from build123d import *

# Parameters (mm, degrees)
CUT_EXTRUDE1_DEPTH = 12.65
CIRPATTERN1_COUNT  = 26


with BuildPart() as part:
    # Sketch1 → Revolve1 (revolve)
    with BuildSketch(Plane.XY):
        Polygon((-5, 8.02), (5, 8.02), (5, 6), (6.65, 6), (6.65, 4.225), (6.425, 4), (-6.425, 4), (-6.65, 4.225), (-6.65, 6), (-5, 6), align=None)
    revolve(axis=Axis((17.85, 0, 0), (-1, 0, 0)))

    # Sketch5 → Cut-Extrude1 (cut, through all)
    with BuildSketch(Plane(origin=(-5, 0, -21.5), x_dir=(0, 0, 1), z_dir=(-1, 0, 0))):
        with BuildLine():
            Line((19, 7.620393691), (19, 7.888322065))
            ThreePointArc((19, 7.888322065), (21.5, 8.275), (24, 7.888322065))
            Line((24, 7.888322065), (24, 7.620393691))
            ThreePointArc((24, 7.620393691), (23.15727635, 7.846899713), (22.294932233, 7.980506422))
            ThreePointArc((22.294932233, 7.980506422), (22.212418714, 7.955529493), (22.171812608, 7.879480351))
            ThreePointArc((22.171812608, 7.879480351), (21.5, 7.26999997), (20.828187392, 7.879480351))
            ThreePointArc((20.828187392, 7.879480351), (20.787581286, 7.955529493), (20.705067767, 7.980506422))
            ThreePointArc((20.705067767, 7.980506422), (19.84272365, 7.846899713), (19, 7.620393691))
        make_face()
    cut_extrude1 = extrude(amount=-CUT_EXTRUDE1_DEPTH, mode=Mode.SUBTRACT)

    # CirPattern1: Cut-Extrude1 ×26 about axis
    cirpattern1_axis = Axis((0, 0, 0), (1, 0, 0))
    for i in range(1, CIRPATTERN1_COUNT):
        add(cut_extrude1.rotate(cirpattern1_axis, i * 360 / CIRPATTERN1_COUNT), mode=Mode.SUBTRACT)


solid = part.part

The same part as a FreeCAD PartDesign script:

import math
import FreeCAD as App
import Part
import Sketcher

doc = App.newDocument("Part")
body = doc.addObject("PartDesign::Body", "Body")

# Sketch on XY plane
sketch1 = body.newObject("Sketcher::SketchObject", "Sketch")
sketch1.AttachmentSupport = (doc.getObject("XY_Plane"), [""])
sketch1.MapMode = "FlatFace"
sketch1.addGeometry([
    Part.LineSegment(App.Vector(5, 8.02, 0), App.Vector(-5, 8.02, 0)),  # 0
    Part.LineSegment(App.Vector(-5, 8.02, 0), App.Vector(-5, 6, 0)),  # 1
    Part.LineSegment(App.Vector(-5, 6, 0), App.Vector(-6.65, 6, 0)),  # 2
    Part.LineSegment(App.Vector(-6.65, 6, 0), App.Vector(-6.65, 4.22, 0)),  # 3
    Part.LineSegment(App.Vector(-6.65, 4.22, 0), App.Vector(-6.42, 4, 0)),  # 4
    Part.LineSegment(App.Vector(-6.42, 4, 0), App.Vector(6.42, 4, 0)),  # 5
    Part.LineSegment(App.Vector(6.42, 4, 0), App.Vector(6.65, 4.22, 0)),  # 6
    Part.LineSegment(App.Vector(6.65, 4.22, 0), App.Vector(6.65, 6, 0)),  # 7
    Part.LineSegment(App.Vector(6.65, 6, 0), App.Vector(5, 6, 0)),  # 8
    Part.LineSegment(App.Vector(5, 6, 0), App.Vector(5, 8.02, 0)),  # 9
], False)
sketch1.addConstraint([
    Sketcher.Constraint("Coincident", 0, 2, 1, 1),
    Sketcher.Constraint("Coincident", 1, 2, 2, 1),
    Sketcher.Constraint("Coincident", 2, 2, 3, 1),
    Sketcher.Constraint("Coincident", 3, 2, 4, 1),
    Sketcher.Constraint("Coincident", 4, 2, 5, 1),
    Sketcher.Constraint("Coincident", 5, 2, 6, 1),
    Sketcher.Constraint("Coincident", 6, 2, 7, 1),
    Sketcher.Constraint("Coincident", 7, 2, 8, 1),
    Sketcher.Constraint("Coincident", 8, 2, 9, 1),
    Sketcher.Constraint("Coincident", 9, 2, 0, 1),
    Sketcher.Constraint("Horizontal", 0),
    Sketcher.Constraint("Vertical", 1),
    Sketcher.Constraint("Horizontal", 2),
    Sketcher.Constraint("Vertical", 3),
    Sketcher.Constraint("Horizontal", 5),
    Sketcher.Constraint("Vertical", 7),
    Sketcher.Constraint("Horizontal", 8),
    Sketcher.Constraint("Vertical", 9),
    Sketcher.Constraint("Symmetric", 3, 2, 6, 2, -2),
    Sketcher.Constraint("Symmetric", 1, 2, 8, 2, -2),
    Sketcher.Constraint("Perpendicular", 4, 6),
    Sketcher.Constraint("Equal", 4, 6),
    Sketcher.Constraint("DistanceX", 0, 2, 0, 1, 10.0),
    Sketcher.Constraint("DistanceY", -1, 1, 1, 2, 6.0),
    Sketcher.Constraint("DistanceY", -1, 1, 4, 2, 4.0),
    Sketcher.Constraint("DistanceX", 2, 2, 2, 1, 1.65),
    Sketcher.Constraint("DistanceX", 5, 1, 5, 2, 12.85),
    Sketcher.Constraint("DistanceY", 1, 2, 1, 1, 2.02),
])
revolution = body.newObject("PartDesign::Revolution", "Revolution")
revolution.Profile = sketch1
revolution.ReferenceAxis = (sketch1, ["H_Axis"])
revolution.Angle = 360

# Sketch on YZ plane
sketch2 = body.newObject("Sketcher::SketchObject", "Sketch001")
sketch2.AttachmentSupport = (doc.getObject("YZ_Plane"), [""])
sketch2.MapMode = "FlatFace"
sketch2.AttachmentOffset = App.Placement(App.Vector(0, 0, -5), App.Rotation())
sketch2.addGeometry([
    Part.LineSegment(App.Vector(7.89, -2.5, 0), App.Vector(7.62, -2.5, 0)),  # 0
    Part.ArcOfCircle(Part.Circle(App.Vector(0, 0, 0), App.Vector(0, 0, 1), 8.02), math.radians(-18.16), math.radians(-5.69)),  # 1
    Part.ArcOfCircle(Part.Circle(App.Vector(7.87, -0.78, 0), App.Vector(0, 0, 1), 0.11), math.radians(-6), math.radians(84)),  # 2
    Part.ArcOfCircle(Part.Circle(App.Vector(7.94, 0, 0), App.Vector(0, 0, 1), 0.68), math.radians(96), math.radians(264)),  # 3
    Part.ArcOfCircle(Part.Circle(App.Vector(7.87, 0.78, 0), App.Vector(0, 0, 1), 0.11), math.radians(-84), math.radians(6)),  # 4
    Part.ArcOfCircle(Part.Circle(App.Vector(0, 0, 0), App.Vector(0, 0, 1), 8.02), math.radians(5.69), math.radians(18.16)),  # 5
    Part.LineSegment(App.Vector(7.62, 2.5, 0), App.Vector(7.89, 2.5, 0)),  # 6
    Part.ArcOfCircle(Part.Circle(App.Vector(0, 0, 0), App.Vector(0, 0, 1), 8.28), math.radians(-18), math.radians(18)),  # 7
], False)
sketch2.addConstraint([
    Sketcher.Constraint("Coincident", 0, 2, 1, 1),
    Sketcher.Constraint("Tangent", 1, 2, 2, 1),
    Sketcher.Constraint("Tangent", 2, 2, 3, 2),
    Sketcher.Constraint("Tangent", 3, 1, 4, 1),
    Sketcher.Constraint("Tangent", 4, 2, 5, 1),
    Sketcher.Constraint("Coincident", 5, 2, 6, 1),
    Sketcher.Constraint("Coincident", 6, 2, 7, 2),
    Sketcher.Constraint("Coincident", 7, 1, 0, 1),
    Sketcher.Constraint("Horizontal", 0),
    Sketcher.Constraint("Horizontal", 6),
    Sketcher.Constraint("Coincident", 1, 3, -1, 1),
    Sketcher.Constraint("Coincident", 5, 3, -1, 1),
    Sketcher.Constraint("Coincident", 7, 3, -1, 1),
    Sketcher.Constraint("Equal", 2, 4),
    Sketcher.Constraint("Equal", 1, 5),
    Sketcher.Constraint("PointOnObject", 3, 3, -1),
    Sketcher.Constraint("Vertical", 0, 2, 5, 2),
    Sketcher.Constraint("Radius", 1, 8.02),
    Sketcher.Constraint("Radius", 3, 0.675),
    Sketcher.Constraint("Radius", 7, 8.275),
    Sketcher.Constraint("DistanceY", 0, 2, -1, 1, 2.5),
    Sketcher.Constraint("Radius", 2, 0.1125),
    Sketcher.Constraint("DistanceX", -1, 1, 3, 3, 7.945),
])
pocket1 = body.newObject("PartDesign::Pocket", "Pocket")
pocket1.Profile = sketch2
pocket1.Type = "ThroughAll"
pocket1.Reversed = True
doc.recompute()

polarpattern = body.newObject("PartDesign::PolarPattern", "PolarPattern")
polarpattern.Originals = [pocket1]
polarpattern.Axis = (doc.getObject("X_Axis"), [""])
polarpattern.Angle = 360
polarpattern.Occurrences = 26
body.Tip = polarpattern

doc.recompute()
